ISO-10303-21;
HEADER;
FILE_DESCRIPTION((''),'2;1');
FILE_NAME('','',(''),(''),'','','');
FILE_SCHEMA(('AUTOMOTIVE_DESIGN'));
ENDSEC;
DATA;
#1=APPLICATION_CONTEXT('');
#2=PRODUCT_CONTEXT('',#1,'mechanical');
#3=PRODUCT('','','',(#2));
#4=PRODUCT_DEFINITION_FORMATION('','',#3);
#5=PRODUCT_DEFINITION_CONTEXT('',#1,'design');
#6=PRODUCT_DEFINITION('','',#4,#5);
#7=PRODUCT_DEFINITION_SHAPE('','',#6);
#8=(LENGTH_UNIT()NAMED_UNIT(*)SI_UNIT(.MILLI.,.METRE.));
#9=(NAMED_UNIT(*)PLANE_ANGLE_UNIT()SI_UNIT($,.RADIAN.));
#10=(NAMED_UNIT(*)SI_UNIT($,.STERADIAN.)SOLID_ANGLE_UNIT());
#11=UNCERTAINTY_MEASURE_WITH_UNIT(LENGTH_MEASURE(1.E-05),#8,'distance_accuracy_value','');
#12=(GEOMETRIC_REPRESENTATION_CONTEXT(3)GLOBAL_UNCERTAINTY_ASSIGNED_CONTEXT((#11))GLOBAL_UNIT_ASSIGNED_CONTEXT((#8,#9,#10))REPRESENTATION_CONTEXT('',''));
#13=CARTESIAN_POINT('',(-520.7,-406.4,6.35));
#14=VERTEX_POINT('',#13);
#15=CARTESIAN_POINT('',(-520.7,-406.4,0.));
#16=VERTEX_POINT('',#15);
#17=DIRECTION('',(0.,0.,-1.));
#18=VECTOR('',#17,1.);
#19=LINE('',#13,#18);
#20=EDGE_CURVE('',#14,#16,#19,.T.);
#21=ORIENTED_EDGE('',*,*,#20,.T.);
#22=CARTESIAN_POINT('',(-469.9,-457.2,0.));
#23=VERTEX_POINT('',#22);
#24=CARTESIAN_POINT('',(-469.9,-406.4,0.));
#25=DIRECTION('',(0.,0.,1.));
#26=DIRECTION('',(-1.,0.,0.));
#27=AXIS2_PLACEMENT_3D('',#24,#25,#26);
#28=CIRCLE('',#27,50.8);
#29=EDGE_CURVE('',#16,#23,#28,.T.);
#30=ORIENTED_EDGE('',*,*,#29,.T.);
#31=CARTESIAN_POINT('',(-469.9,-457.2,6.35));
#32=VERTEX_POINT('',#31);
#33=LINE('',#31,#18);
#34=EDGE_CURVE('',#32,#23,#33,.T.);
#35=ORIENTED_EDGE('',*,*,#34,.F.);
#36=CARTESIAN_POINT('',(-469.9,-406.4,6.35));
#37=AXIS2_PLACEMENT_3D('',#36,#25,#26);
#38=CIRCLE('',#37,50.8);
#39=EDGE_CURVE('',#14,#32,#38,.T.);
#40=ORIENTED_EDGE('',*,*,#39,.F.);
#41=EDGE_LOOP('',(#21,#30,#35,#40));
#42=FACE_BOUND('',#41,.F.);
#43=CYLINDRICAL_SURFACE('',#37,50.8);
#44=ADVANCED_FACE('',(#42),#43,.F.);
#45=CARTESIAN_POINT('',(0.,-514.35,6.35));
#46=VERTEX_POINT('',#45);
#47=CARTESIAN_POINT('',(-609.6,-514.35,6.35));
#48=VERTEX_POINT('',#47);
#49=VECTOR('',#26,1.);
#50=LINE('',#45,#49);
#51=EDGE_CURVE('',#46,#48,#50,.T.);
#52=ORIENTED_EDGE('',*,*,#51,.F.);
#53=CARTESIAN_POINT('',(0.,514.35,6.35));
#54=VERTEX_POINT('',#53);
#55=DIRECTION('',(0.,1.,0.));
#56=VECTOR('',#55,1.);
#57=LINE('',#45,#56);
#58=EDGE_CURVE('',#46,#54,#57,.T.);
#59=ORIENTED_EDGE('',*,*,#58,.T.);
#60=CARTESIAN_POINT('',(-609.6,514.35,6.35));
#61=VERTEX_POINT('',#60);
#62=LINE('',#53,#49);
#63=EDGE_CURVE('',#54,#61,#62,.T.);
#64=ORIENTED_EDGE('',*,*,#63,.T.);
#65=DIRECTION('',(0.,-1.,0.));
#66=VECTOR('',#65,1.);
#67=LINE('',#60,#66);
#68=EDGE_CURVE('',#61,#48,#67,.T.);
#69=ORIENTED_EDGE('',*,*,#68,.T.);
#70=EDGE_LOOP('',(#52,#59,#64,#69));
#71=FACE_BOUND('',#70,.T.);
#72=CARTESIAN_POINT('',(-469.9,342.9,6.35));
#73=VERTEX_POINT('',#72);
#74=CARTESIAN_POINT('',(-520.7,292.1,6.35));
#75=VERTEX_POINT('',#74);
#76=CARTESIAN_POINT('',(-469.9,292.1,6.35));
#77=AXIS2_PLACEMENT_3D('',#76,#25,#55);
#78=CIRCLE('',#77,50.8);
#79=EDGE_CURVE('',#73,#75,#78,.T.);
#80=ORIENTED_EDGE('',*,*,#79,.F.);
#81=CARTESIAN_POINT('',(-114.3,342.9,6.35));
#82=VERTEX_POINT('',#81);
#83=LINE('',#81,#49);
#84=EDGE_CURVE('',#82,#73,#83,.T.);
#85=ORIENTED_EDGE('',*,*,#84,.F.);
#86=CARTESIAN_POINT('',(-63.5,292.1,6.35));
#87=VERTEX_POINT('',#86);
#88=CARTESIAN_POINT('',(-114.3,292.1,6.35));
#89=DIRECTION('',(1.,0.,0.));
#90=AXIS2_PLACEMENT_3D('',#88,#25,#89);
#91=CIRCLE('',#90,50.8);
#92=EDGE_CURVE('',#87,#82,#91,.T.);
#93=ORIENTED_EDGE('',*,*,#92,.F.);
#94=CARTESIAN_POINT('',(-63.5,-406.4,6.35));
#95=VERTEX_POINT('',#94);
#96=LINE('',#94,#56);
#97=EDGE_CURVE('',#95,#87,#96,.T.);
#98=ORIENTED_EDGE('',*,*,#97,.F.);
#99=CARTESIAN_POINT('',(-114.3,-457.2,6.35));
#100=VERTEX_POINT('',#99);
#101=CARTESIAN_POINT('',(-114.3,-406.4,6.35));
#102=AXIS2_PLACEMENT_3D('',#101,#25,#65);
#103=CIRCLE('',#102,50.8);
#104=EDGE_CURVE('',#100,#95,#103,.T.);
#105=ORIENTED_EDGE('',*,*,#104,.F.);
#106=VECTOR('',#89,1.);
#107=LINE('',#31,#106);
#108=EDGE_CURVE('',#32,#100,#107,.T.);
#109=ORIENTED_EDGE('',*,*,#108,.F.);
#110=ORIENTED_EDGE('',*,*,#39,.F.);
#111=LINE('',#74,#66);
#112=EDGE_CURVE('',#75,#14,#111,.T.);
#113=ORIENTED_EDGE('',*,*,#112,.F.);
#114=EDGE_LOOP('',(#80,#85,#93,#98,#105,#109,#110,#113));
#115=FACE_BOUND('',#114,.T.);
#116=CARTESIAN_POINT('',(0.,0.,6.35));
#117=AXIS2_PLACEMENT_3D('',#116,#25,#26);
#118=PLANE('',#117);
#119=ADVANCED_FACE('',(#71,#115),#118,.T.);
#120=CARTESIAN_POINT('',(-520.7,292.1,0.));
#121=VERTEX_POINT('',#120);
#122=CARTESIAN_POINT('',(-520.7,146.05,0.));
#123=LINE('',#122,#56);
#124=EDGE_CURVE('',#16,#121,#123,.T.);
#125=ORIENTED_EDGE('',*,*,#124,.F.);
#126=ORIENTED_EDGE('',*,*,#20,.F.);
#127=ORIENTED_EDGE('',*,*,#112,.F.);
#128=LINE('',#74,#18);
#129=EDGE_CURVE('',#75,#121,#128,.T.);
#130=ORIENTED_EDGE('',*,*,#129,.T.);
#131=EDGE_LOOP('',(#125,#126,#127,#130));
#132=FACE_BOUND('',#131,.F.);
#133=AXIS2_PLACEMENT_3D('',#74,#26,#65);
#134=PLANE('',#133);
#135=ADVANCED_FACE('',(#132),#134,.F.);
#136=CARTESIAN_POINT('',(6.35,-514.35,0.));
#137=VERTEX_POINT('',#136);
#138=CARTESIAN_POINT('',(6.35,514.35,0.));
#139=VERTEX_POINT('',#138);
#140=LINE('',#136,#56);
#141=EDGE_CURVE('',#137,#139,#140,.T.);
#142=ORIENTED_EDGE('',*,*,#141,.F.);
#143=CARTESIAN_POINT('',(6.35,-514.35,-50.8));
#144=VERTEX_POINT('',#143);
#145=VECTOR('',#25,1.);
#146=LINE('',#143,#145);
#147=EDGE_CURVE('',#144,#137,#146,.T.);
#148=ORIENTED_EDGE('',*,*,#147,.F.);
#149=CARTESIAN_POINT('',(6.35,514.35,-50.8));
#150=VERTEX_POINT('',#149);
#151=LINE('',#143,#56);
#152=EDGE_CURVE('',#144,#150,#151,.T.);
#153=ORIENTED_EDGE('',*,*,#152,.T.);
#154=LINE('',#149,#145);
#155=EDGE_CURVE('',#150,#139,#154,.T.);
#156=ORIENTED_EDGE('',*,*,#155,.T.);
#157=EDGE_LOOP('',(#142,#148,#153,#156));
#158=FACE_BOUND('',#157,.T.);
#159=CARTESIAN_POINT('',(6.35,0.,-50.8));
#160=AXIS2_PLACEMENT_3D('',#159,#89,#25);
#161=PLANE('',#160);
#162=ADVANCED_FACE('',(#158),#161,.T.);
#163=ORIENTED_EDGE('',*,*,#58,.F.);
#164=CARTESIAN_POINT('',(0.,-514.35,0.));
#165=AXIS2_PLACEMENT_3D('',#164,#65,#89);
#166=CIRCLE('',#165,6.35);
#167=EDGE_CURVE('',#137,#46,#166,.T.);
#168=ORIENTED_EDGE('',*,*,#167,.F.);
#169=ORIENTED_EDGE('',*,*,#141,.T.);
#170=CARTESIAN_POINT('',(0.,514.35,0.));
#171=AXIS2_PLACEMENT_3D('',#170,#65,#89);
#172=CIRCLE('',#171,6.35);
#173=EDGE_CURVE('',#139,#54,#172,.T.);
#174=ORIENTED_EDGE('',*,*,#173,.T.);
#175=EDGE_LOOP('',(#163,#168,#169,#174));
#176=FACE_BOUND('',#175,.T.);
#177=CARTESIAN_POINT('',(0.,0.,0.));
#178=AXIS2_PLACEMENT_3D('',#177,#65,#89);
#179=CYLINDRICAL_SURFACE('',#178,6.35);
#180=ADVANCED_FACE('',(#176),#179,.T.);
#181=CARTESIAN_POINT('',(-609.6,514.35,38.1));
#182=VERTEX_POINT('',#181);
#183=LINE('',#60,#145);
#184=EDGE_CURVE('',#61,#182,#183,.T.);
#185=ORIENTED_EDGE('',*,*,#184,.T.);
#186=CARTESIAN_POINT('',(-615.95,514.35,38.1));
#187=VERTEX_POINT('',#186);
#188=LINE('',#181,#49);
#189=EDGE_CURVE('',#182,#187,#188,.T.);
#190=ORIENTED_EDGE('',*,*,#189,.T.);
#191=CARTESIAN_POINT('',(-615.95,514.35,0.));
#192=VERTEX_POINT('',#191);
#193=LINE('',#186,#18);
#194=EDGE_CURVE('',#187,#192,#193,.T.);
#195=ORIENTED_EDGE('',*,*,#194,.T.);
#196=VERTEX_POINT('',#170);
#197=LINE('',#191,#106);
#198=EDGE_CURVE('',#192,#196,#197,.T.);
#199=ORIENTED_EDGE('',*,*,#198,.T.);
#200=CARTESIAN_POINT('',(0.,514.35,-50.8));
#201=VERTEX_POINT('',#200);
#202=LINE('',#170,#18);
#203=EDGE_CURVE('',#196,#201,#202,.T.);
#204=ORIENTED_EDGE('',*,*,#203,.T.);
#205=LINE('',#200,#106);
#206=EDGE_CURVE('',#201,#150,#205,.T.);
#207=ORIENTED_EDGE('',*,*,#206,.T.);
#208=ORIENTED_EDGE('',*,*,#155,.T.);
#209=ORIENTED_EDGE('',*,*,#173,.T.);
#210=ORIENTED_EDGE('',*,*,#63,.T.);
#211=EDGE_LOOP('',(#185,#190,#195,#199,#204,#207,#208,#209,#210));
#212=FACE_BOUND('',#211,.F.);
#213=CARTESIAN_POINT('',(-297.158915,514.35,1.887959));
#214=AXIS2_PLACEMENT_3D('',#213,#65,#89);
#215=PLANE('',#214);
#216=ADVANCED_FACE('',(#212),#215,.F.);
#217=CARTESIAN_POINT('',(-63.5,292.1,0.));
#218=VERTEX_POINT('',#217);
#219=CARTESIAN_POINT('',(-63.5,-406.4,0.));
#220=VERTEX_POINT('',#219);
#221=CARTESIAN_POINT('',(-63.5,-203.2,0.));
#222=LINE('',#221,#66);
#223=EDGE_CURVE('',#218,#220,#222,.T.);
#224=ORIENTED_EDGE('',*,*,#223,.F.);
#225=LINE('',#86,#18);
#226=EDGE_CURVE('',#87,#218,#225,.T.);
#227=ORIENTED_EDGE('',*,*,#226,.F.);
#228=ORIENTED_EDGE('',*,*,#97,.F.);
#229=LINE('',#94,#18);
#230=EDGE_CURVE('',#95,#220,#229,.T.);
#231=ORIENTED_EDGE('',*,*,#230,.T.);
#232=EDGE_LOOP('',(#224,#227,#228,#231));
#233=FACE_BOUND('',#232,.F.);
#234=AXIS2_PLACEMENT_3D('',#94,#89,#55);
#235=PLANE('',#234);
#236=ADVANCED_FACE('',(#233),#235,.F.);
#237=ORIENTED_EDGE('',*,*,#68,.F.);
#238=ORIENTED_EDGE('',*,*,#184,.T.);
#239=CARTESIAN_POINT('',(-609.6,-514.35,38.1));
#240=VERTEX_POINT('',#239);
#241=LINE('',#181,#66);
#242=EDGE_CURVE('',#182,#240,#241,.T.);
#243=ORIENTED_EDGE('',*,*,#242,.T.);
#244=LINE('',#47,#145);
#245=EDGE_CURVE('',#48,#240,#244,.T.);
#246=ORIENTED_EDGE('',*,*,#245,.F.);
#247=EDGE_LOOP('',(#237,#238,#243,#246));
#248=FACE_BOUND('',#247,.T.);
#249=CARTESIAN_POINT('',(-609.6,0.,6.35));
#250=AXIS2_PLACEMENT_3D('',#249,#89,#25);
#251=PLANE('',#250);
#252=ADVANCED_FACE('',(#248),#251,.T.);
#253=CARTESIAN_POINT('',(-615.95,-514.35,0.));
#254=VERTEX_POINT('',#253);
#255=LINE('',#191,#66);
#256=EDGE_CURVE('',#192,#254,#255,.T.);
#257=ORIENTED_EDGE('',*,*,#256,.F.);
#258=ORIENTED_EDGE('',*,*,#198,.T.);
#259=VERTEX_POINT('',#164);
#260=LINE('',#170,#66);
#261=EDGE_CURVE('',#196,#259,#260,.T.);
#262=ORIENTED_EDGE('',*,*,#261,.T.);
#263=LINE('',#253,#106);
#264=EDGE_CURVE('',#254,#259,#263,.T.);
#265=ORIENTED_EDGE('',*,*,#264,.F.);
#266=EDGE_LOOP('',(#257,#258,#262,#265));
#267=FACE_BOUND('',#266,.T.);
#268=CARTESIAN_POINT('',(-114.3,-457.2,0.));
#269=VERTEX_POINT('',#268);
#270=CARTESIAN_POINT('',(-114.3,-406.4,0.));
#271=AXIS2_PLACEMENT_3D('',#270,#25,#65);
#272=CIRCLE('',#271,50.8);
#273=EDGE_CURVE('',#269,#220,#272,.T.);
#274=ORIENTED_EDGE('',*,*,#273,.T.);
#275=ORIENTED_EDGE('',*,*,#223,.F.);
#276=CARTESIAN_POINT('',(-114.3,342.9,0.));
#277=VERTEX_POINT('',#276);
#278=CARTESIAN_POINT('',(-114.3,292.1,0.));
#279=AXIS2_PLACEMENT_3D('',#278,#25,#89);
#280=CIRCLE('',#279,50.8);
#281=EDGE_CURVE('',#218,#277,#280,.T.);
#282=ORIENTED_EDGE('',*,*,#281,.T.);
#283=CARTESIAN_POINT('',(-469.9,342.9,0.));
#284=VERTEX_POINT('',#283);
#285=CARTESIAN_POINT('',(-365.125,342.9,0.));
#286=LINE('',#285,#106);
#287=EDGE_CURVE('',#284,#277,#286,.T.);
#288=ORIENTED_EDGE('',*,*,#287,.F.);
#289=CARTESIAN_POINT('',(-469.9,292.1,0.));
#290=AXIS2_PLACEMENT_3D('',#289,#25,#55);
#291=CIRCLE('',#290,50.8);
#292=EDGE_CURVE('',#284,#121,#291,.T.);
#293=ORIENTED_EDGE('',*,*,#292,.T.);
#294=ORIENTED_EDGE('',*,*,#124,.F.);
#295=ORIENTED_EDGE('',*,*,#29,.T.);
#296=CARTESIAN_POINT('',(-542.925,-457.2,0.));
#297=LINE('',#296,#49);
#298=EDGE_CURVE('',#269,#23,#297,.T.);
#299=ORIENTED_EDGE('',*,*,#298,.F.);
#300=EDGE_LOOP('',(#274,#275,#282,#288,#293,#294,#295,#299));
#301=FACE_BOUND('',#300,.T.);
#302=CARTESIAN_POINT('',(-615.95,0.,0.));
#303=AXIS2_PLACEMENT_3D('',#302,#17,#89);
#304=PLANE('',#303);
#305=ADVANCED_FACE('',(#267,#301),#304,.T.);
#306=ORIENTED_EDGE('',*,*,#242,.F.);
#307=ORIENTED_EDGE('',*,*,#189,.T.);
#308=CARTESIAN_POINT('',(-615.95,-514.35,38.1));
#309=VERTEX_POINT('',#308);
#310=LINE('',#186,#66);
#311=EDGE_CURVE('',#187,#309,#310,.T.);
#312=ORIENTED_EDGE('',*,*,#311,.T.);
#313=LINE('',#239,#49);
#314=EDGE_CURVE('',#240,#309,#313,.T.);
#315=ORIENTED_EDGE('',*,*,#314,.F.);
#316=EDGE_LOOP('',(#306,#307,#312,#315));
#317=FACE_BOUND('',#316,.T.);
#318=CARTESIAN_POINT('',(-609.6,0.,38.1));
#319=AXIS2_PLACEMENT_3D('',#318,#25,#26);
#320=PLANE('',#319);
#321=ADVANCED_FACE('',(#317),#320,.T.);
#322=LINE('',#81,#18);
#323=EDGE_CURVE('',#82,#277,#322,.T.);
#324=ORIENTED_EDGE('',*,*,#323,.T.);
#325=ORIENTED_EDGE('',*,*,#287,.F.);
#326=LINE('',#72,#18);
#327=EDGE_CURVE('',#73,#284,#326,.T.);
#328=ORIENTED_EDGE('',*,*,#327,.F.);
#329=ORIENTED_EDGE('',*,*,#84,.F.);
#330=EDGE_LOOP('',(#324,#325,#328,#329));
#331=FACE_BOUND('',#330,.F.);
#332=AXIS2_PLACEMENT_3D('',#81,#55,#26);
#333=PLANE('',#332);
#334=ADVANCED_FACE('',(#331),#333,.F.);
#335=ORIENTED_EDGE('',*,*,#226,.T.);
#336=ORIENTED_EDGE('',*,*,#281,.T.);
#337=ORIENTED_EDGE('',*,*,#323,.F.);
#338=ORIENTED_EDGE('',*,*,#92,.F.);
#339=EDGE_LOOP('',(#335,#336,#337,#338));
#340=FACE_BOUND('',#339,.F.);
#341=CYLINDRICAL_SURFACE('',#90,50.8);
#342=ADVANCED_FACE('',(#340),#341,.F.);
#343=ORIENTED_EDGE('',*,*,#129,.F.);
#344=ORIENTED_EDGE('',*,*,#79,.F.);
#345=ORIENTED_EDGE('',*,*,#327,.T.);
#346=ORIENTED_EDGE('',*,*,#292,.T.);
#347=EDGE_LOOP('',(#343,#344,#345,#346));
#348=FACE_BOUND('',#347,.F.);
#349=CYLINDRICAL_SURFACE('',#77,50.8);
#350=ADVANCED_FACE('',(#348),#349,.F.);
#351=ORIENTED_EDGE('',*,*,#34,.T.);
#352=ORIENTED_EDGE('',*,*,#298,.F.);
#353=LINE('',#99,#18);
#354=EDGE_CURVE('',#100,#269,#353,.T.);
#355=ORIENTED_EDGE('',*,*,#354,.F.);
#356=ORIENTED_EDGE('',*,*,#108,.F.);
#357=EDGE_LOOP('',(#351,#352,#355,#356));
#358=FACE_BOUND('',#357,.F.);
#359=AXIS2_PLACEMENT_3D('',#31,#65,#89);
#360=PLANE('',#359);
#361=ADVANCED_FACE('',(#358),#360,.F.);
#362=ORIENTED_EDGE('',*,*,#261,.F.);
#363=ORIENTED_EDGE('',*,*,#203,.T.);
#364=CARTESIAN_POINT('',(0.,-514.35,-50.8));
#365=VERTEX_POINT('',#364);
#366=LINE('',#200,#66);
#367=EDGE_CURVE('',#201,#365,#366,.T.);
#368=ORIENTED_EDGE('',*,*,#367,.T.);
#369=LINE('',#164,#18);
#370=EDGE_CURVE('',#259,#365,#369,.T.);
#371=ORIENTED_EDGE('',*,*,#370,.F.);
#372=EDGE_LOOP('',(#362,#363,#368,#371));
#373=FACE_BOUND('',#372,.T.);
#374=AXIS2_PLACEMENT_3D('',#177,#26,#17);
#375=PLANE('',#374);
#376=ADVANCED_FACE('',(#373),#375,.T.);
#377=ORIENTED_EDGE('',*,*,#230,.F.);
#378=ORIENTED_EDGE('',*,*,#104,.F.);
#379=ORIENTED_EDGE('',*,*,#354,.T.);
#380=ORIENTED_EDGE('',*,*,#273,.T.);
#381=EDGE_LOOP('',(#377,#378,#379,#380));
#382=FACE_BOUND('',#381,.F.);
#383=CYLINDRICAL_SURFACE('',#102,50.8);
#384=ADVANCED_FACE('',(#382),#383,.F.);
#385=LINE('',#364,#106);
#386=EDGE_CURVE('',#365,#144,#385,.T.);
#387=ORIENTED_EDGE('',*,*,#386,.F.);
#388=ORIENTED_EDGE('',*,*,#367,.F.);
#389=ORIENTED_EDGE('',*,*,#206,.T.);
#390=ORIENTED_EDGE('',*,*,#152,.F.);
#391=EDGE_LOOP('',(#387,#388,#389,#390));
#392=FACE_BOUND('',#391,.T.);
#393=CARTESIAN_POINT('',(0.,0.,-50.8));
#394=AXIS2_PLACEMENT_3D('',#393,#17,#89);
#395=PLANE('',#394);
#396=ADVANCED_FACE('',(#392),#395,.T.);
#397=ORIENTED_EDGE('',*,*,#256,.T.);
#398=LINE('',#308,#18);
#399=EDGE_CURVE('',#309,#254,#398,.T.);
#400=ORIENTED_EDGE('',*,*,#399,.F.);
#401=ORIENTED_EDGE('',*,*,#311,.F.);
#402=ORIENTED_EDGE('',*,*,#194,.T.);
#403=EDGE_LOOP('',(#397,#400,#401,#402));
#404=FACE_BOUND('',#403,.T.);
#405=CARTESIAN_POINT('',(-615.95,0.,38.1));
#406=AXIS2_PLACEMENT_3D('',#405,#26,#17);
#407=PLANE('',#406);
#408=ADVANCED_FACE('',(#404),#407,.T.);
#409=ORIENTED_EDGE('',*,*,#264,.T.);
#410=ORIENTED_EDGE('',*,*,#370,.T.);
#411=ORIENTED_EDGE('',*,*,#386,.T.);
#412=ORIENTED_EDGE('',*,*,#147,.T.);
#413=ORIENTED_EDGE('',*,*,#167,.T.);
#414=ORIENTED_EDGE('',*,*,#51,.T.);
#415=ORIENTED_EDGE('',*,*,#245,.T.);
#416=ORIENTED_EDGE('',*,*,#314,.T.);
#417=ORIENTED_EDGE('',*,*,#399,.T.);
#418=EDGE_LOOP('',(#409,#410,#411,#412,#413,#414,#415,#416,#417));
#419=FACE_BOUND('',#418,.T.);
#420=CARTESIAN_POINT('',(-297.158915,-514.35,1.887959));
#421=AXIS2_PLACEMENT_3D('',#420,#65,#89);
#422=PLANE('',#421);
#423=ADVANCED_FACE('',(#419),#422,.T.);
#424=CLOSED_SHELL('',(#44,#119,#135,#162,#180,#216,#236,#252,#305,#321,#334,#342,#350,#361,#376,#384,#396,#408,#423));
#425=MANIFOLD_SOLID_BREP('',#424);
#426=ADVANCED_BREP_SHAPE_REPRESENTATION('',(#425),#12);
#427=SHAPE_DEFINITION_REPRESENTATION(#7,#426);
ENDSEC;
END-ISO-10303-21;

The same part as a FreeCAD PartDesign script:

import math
import FreeCAD as App
import Part
import Sketcher
Q = App.Units.Quantity

doc = App.newDocument("Part")
body = doc.addObject("PartDesign::Body", "Body")

sketch1 = body.newObject("Sketcher::SketchObject", "Sketch")
sketch1.AttachmentSupport = (doc.getObject("XZ_Plane"), [""])
sketch1.MapMode = "FlatFace"
sketch1.addGeometry(Part.LineSegment(App.Vector(0, 6, 0), App.Vector(-610, 6, 0)), False)
sketch1.addGeometry(Part.LineSegment(App.Vector(-610, 6, 0), App.Vector(-610, 38, 0)), False)
sketch1.addGeometry(Part.LineSegment(App.Vector(-610, 38, 0), App.Vector(-616, 38, 0)), False)
sketch1.addGeometry(Part.LineSegment(App.Vector(-616, 38, 0), App.Vector(-616, 0, 0)), False)
sketch1.addGeometry(Part.LineSegment(App.Vector(-616, 0, 0), App.Vector(0, 0, 0)), False)
sketch1.addGeometry(Part.LineSegment(App.Vector(0, 0, 0), App.Vector(0, -51, 0)), False)
sketch1.addGeometry(Part.LineSegment(App.Vector(0, -51, 0), App.Vector(6, -51, 0)), False)
sketch1.addGeometry(Part.LineSegment(App.Vector(6, -51, 0), App.Vector(6, 0, 0)), False)
sketch1.addGeometry(Part.ArcOfCircle(Part.Circle(App.Vector(0, 0, 0), App.Vector(0, 0, 1), 6), math.radians(0), math.radians(90)), False)
sketch1.addConstraint(Sketcher.Constraint("Coincident", 0, 2, 1, 1))
sketch1.addConstraint(Sketcher.Constraint("Coincident", 1, 2, 2, 1))
sketch1.addConstraint(Sketcher.Constraint("Coincident", 2, 2, 3, 1))
sketch1.addConstraint(Sketcher.Constraint("Coincident", 3, 2, 4, 1))
sketch1.addConstraint(Sketcher.Constraint("Coincident", 4, 2, 5, 1))
sketch1.addConstraint(Sketcher.Constraint("Coincident", 5, 2, 6, 1))
sketch1.addConstraint(Sketcher.Constraint("Coincident", 6, 2, 7, 1))
sketch1.addConstraint(Sketcher.Constraint("Tangent", 7, 2, 8, 1))
sketch1.addConstraint(Sketcher.Constraint("Tangent", 8, 2, 0, 1))
sketch1.addConstraint(Sketcher.Constraint("Horizontal", 0))
sketch1.addConstraint(Sketcher.Constraint("Vertical", 1))
sketch1.addConstraint(Sketcher.Constraint("Horizontal", 2))
sketch1.addConstraint(Sketcher.Constraint("Vertical", 3))
sketch1.addConstraint(Sketcher.Constraint("Horizontal", 4))
sketch1.addConstraint(Sketcher.Constraint("Vertical", 5))
sketch1.addConstraint(Sketcher.Constraint("Horizontal", 6))
sketch1.addConstraint(Sketcher.Constraint("Vertical", 7))
sketch1.addConstraint(Sketcher.Constraint("Coincident", 8, 3, -1, 1))
sketch1.addConstraint(Sketcher.Constraint("Coincident", 4, 2, -1, 1))
sketch1.addConstraint(Sketcher.Constraint("Equal", 2, 6))
sketch1.addConstraint(Sketcher.Constraint("DistanceX", 0, 2, 0, 1, Q("24 in")))
sketch1.addConstraint(Sketcher.Constraint("DistanceY", 5, 2, 5, 1, Q("2 in")))
sketch1.addConstraint(Sketcher.Constraint("Radius", 8, Q("0.25 in")))
sketch1.addConstraint(Sketcher.Constraint("DistanceY", 3, 2, 3, 1, Q("1.5 in")))
pad1 = body.newObject("PartDesign::Pad", "Pad")
pad1.Profile = sketch1
pad1.Length = Q("40.5 in")
pad1.Midplane = True

sketch2 = body.newObject("Sketcher::SketchObject", "Sketch001")
sketch2.AttachmentSupport = (doc.getObject("XY_Plane"), [""])
sketch2.MapMode = "FlatFace"
sketch2.AttachmentOffset = App.Placement(App.Vector(0, 0, 0.25 * 25.4), App.Rotation())
sketch2.addGeometry(Part.LineSegment(App.Vector(-114, 343, 0), App.Vector(-470, 343, 0)), False)
sketch2.addGeometry(Part.ArcOfCircle(Part.Circle(App.Vector(-470, 292, 0), App.Vector(0, 0, 1), 51), math.radians(90), math.radians(180)), False)
sketch2.addGeometry(Part.LineSegment(App.Vector(-521, 292, 0), App.Vector(-521, -406, 0)), False)
sketch2.addGeometry(Part.ArcOfCircle(Part.Circle(App.Vector(-470, -406, 0), App.Vector(0, 0, 1), 51), math.radians(180), math.radians(270)), False)
sketch2.addGeometry(Part.LineSegment(App.Vector(-470, -457, 0), App.Vector(-114, -457, 0)), False)
sketch2.addGeometry(Part.ArcOfCircle(Part.Circle(App.Vector(-114, -406, 0), App.Vector(0, 0, 1), 51), math.radians(-90), math.radians(0)), False)
sketch2.addGeometry(Part.LineSegment(App.Vector(-64, -406, 0), App.Vector(-64, 292, 0)), False)
sketch2.addGeometry(Part.ArcOfCircle(Part.Circle(App.Vector(-114, 292, 0), App.Vector(0, 0, 1), 51), math.radians(0), math.radians(90)), False)
sketch2.addConstraint(Sketcher.Constraint("Tangent", 0, 2, 1, 1))
sketch2.addConstraint(Sketcher.Constraint("Tangent", 1, 2, 2, 1))
sketch2.addConstraint(Sketcher.Constraint("Tangent", 2, 2, 3, 1))
sketch2.addConstraint(Sketcher.Constraint("Tangent", 3, 2, 4, 1))
sketch2.addConstraint(Sketcher.Constraint("Tangent", 4, 2, 5, 1))
sketch2.addConstraint(Sketcher.Constraint("Tangent", 5, 2, 6, 1))
sketch2.addConstraint(Sketcher.Constraint("Tangent", 6, 2, 7, 1))
sketch2.addConstraint(Sketcher.Constraint("Tangent", 7, 2, 0, 1))
sketch2.addConstraint(Sketcher.Constraint("Horizontal", 0))
sketch2.addConstraint(Sketcher.Constraint("Vertical", 2))
sketch2.addConstraint(Sketcher.Constraint("Horizontal", 4))
sketch2.addConstraint(Sketcher.Constraint("Vertical", 6))
sketch2.addConstraint(Sketcher.Constraint("Equal", 1, 3))
sketch2.addConstraint(Sketcher.Constraint("Equal", 3, 5))
sketch2.addConstraint(Sketcher.Constraint("Equal", 5, 7))
sketch2.addConstraint(Sketcher.Constraint("Radius", 1, Q("2 in")))
sketch2.addConstraint(Sketcher.Constraint("DistanceX", 0, 2, 0, 1, Q("14 in")))
sketch2.addConstraint(Sketcher.Constraint("DistanceY", 2, 2, 2, 1, Q("27.5 in")))
sketch2.addConstraint(Sketcher.Constraint("DistanceY", 3, 3, -1, 1, Q("16 in")))
sketch2.addConstraint(Sketcher.Constraint("DistanceX", 1, 3, -1, 1, Q("18.5 in")))
pocket1 = body.newObject("PartDesign::Pocket", "Pocket")
pocket1.Profile = sketch2
pocket1.Length = Q("1 in")

doc.recompute()
